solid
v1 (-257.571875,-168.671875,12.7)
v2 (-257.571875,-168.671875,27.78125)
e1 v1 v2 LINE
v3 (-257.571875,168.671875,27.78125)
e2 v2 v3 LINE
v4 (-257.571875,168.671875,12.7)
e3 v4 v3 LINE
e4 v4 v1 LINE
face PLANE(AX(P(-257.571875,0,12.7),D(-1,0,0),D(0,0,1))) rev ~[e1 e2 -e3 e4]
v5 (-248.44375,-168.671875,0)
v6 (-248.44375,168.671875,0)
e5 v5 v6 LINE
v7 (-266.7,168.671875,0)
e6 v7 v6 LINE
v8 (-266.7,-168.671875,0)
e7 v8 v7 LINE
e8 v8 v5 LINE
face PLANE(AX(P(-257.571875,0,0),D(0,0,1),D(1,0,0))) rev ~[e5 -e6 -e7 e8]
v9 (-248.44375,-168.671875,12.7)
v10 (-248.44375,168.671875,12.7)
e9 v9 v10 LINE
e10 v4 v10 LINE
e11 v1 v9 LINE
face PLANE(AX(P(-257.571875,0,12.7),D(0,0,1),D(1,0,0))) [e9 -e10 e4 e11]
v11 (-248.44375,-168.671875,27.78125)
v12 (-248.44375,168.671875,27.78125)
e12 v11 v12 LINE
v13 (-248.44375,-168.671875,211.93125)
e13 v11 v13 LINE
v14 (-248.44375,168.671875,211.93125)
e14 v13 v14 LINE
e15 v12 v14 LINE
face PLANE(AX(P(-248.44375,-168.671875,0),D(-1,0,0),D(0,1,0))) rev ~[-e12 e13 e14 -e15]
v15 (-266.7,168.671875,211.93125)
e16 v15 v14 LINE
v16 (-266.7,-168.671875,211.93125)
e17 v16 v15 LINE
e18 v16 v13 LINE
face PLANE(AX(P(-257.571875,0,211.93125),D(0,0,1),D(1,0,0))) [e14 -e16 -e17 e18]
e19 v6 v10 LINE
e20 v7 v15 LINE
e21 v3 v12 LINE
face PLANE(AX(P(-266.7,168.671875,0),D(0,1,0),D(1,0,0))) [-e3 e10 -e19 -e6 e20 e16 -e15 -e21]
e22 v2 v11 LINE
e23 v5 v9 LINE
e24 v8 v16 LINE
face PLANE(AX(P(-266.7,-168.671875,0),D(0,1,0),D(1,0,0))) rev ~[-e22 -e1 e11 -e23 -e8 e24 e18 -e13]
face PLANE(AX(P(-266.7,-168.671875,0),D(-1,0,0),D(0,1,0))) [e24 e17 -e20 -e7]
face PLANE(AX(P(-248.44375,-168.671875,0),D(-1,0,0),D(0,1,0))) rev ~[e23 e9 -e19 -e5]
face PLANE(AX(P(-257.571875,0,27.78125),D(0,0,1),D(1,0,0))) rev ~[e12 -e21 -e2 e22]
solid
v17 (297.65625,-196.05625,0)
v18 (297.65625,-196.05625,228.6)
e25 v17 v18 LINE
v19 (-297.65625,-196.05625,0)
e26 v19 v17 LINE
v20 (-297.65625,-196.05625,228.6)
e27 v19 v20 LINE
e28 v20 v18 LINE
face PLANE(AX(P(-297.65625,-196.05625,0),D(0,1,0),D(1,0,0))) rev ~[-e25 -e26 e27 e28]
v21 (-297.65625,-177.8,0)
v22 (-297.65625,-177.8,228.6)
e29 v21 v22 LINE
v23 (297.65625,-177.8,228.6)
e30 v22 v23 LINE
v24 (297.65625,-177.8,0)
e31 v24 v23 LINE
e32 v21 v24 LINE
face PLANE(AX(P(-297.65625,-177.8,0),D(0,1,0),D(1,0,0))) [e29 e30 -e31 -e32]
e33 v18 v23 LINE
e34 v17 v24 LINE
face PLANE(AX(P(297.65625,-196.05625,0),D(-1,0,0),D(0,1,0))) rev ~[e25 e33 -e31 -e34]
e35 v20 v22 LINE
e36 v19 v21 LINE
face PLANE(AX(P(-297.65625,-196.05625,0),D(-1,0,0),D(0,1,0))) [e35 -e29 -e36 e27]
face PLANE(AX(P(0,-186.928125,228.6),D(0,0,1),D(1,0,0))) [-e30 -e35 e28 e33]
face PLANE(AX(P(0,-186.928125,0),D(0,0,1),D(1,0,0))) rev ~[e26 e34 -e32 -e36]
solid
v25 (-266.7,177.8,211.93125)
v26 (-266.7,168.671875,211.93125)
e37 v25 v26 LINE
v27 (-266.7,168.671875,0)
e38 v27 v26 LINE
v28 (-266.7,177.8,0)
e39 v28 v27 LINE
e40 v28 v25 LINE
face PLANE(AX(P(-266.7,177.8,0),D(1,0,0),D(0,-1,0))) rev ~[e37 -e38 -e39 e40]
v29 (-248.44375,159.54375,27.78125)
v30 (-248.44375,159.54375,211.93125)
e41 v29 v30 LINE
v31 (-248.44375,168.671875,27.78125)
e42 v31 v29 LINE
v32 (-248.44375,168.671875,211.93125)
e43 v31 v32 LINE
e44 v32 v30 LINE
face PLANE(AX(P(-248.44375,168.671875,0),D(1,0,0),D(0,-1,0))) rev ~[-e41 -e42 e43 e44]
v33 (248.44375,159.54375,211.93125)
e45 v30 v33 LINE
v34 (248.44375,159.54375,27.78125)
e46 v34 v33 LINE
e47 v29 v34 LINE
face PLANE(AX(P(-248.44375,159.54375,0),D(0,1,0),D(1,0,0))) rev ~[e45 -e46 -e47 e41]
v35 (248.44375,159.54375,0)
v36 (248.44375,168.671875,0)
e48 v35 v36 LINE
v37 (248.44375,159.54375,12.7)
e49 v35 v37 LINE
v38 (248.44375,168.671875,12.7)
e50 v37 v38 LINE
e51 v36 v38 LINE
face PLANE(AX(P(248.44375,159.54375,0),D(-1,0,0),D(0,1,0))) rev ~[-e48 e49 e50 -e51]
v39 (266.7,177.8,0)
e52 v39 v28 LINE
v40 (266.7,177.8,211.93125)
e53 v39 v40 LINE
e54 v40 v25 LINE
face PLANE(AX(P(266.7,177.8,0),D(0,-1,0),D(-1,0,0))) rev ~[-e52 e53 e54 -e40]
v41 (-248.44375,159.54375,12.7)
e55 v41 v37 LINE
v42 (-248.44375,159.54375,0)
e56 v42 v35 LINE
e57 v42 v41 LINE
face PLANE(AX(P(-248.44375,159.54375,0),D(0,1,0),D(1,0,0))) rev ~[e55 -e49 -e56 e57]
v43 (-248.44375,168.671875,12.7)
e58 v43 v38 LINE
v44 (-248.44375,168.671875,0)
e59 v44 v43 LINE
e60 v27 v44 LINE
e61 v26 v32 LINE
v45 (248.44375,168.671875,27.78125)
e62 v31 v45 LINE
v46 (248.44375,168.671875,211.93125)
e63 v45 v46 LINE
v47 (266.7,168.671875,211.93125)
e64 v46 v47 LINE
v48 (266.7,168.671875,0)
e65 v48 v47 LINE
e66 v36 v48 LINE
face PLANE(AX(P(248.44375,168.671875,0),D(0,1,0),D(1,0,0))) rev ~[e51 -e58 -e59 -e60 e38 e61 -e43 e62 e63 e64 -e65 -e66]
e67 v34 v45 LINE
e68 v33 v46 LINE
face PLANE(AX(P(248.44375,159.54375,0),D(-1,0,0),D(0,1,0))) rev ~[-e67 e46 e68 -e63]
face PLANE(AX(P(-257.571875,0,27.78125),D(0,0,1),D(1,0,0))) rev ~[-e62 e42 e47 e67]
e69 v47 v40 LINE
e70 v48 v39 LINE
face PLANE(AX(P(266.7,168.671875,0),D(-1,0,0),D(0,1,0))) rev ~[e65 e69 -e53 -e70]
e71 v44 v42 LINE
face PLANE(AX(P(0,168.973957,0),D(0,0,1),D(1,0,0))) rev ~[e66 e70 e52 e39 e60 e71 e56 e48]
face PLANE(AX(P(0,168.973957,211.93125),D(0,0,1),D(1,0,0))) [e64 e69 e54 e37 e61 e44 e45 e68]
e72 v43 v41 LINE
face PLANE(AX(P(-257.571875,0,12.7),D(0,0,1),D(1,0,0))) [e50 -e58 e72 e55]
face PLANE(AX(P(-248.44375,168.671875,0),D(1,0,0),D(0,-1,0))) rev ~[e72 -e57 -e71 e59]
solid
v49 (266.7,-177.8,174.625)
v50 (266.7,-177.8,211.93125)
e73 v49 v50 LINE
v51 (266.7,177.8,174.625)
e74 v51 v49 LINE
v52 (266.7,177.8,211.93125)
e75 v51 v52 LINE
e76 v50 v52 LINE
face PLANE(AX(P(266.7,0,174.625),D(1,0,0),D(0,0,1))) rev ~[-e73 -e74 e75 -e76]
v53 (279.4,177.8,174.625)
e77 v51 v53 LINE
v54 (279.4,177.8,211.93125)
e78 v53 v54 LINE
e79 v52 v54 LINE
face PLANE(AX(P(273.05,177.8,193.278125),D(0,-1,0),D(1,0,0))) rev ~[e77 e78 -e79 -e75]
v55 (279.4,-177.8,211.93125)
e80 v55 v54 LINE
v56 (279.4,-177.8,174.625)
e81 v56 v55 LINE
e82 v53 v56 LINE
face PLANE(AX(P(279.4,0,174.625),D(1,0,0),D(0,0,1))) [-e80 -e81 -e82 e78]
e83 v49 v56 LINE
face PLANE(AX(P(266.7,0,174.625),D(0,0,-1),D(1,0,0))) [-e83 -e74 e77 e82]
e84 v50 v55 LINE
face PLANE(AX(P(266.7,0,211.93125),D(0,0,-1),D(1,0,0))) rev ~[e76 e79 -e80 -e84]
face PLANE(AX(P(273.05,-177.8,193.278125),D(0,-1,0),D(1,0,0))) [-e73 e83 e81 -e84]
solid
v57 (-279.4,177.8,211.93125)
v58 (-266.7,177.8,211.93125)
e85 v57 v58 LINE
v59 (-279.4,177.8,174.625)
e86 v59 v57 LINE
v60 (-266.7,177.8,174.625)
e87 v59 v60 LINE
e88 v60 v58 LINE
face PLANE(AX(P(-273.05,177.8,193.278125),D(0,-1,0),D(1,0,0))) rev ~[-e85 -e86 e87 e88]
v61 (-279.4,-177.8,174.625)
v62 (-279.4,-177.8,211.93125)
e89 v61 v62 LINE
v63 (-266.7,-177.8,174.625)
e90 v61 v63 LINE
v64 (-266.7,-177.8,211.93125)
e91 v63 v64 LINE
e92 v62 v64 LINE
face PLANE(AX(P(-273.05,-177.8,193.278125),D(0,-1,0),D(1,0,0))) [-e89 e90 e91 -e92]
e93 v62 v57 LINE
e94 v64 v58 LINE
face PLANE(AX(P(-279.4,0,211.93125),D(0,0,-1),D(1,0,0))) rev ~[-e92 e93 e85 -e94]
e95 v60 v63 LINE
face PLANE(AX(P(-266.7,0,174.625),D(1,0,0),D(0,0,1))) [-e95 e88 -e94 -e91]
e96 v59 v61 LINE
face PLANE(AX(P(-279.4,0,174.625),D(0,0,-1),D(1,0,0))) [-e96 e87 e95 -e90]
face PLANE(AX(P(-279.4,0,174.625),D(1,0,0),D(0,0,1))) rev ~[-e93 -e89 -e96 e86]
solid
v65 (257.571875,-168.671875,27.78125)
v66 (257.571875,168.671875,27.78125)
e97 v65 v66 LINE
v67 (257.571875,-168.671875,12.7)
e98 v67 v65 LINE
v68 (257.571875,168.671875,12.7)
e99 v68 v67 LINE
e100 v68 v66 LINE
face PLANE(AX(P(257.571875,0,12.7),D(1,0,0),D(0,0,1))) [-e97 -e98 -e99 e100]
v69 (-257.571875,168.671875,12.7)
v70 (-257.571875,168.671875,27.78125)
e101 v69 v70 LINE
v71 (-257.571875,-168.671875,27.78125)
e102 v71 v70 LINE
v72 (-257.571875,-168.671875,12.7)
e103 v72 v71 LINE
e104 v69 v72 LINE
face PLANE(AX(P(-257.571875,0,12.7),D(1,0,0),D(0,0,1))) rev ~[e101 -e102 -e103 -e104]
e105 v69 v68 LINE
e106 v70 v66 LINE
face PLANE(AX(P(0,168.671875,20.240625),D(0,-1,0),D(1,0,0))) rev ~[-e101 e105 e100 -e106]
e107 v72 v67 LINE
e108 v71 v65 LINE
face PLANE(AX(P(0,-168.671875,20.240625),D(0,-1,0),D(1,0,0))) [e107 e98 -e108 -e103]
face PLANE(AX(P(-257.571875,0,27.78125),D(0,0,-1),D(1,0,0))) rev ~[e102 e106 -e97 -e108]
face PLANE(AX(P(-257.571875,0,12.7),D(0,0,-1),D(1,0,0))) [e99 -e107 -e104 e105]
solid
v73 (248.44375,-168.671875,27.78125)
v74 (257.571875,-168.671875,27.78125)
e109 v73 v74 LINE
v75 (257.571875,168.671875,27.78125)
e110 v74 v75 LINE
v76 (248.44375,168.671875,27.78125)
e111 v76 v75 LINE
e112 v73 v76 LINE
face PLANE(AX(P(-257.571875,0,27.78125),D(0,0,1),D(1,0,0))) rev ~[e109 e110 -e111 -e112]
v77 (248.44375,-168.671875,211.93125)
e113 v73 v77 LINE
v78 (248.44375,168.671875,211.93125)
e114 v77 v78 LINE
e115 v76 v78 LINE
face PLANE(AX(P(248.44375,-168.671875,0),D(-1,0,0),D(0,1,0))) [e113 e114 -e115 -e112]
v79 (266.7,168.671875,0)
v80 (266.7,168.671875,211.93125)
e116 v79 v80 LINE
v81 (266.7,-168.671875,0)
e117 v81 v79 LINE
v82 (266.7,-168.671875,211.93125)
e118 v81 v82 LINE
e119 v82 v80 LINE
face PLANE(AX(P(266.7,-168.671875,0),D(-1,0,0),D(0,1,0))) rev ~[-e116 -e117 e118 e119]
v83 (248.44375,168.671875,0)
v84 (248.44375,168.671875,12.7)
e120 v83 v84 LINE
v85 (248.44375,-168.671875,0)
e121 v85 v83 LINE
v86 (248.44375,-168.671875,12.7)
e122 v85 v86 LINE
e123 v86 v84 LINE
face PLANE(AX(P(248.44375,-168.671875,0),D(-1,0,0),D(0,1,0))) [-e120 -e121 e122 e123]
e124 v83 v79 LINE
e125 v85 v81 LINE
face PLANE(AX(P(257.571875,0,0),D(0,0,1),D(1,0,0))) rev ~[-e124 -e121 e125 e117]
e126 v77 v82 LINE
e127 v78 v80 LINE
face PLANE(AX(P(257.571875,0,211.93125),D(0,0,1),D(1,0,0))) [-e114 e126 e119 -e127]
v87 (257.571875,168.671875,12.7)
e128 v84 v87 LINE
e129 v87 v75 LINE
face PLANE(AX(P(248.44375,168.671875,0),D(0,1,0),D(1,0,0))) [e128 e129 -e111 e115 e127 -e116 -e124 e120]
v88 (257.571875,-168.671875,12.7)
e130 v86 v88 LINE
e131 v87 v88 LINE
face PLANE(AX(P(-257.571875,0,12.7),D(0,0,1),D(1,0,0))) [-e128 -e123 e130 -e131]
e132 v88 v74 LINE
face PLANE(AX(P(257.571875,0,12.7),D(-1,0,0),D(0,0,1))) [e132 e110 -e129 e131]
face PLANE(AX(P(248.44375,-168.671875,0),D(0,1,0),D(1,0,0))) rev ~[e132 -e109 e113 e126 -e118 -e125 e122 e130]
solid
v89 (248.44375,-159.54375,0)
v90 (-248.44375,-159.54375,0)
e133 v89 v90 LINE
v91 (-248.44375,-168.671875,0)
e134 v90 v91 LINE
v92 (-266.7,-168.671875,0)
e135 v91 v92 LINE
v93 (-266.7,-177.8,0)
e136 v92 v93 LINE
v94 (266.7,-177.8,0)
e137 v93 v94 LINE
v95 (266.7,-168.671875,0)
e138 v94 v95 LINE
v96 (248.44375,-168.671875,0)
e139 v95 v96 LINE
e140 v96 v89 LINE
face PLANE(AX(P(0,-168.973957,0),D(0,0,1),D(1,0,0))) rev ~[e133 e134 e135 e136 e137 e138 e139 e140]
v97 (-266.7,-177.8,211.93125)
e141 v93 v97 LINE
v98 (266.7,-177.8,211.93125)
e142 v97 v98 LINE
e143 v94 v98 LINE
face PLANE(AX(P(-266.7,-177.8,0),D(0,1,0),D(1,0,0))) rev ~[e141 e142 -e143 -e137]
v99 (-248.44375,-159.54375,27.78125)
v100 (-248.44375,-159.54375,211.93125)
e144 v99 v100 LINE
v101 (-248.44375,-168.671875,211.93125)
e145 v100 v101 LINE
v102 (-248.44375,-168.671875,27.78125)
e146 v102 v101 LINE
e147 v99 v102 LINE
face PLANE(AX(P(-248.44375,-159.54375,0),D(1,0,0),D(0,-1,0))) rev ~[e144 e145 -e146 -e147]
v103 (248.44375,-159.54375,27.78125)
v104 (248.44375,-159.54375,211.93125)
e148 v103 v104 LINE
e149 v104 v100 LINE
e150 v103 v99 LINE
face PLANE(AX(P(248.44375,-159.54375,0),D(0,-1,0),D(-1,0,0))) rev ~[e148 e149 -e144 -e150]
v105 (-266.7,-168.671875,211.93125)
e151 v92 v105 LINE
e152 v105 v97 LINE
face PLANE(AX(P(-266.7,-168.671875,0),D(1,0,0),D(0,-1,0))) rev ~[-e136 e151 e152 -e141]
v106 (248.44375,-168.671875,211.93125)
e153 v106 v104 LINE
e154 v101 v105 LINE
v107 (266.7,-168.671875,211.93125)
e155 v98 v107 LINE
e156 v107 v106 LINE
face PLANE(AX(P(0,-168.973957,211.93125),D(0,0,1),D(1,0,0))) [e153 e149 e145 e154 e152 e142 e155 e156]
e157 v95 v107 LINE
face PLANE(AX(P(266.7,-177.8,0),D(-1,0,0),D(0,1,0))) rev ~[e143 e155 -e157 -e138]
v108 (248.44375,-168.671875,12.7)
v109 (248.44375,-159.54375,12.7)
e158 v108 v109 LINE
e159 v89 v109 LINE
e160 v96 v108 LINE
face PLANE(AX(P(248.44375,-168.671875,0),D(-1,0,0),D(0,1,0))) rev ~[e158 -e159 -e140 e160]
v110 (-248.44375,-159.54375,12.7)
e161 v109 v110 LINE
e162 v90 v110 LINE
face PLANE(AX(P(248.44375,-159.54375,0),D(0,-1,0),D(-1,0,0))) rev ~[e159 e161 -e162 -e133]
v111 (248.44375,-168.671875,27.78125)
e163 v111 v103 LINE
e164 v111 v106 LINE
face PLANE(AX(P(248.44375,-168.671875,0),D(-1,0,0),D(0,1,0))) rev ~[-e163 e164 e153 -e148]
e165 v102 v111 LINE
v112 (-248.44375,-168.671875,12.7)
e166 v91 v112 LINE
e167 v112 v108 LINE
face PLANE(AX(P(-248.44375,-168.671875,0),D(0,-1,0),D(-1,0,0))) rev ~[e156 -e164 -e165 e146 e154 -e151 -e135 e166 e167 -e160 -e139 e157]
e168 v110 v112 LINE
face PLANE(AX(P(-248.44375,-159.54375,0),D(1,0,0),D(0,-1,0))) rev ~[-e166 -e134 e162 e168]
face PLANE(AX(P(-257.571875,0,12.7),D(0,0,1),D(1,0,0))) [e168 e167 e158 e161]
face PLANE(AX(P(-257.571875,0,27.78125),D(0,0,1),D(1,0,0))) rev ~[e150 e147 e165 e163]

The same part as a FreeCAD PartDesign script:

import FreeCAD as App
import Part
import Sketcher
Q = App.Units.Quantity


def add_polygon(sketch, points):
    """Adds a closed chain of lines whose ends are joined by coincident constraints."""
    first, n = sketch.GeometryCount, len(points)
    for a, b in zip(points, points[1:] + points[:1]):
        sketch.addGeometry(Part.LineSegment(App.Vector(*a, 0), App.Vector(*b, 0)), False)
    for i in range(n):
        sketch.addConstraint(Sketcher.Constraint("Coincident", first + i, 2, first + (i + 1) % n, 1))

doc = App.newDocument("Part")
body = doc.addObject("PartDesign::Body", "Body")

# Sketch on XY plane
sketch1 = body.newObject("Sketcher::SketchObject", "Sketch")
sketch1.AttachmentSupport = (doc.getObject("XY_Plane"), [""])
sketch1.MapMode = "FlatFace"
add_polygon(sketch1, [(266.7, 177.8), (-266.7, 177.8), (-266.7, 168.671875), (-248.44375, 168.671875), (-248.44375, 159.54375), (248.44375, 159.54375), (248.44375, 168.671875), (266.7, 168.671875)])  # lines 0-7
sketch1.addConstraint([
    Sketcher.Constraint("Horizontal", 0),
    Sketcher.Constraint("Vertical", 1),
    Sketcher.Constraint("Horizontal", 2),
    Sketcher.Constraint("Vertical", 3),
    Sketcher.Constraint("Horizontal", 4),
    Sketcher.Constraint("Vertical", 5),
    Sketcher.Constraint("Horizontal", 6),
    Sketcher.Constraint("Vertical", 7),
    Sketcher.Constraint("Symmetric", 2, 2, 5, 2, -2),
    Sketcher.Constraint("Equal", 2, 6),
    Sketcher.Constraint("Equal", 1, 3),
    Sketcher.Constraint("DistanceX", 0, 2, 0, 1, Q("21 in")),
    Sketcher.Constraint("DistanceY", -1, 1, 0, 2, Q("7 in")),
    Sketcher.Constraint("DistanceX", 2, 1, 2, 2, Q("0.71875 in")),
    Sketcher.Constraint("DistanceY", 1, 2, 1, 1, Q("0.359375 in")),
])
pad1 = body.newObject("PartDesign::Pad", "Pad")
pad1.Profile = sketch1
pad1.Length = Q("8.34375 in")
body2 = doc.addObject("PartDesign::Body", "Body001")

# Sketch on XY plane
sketch2 = body2.newObject("Sketcher::SketchObject", "Sketch001")
sketch2.AttachmentSupport = (doc.getObject("XY_Plane001"), [""])
sketch2.MapMode = "FlatFace"
add_polygon(sketch2, [(-266.7, -177.8), (266.7, -177.8), (266.7, -168.671875), (248.44375, -168.671875), (248.44375, -159.54375), (-248.44375, -159.54375), (-248.44375, -168.671875), (-266.7, -168.671875)])  # lines 0-7
sketch2.addConstraint([
    Sketcher.Constraint("Horizontal", 0),
    Sketcher.Constraint("Vertical", 1),
    Sketcher.Constraint("Horizontal", 2),
    Sketcher.Constraint("Vertical", 3),
    Sketcher.Constraint("Horizontal", 4),
    Sketcher.Constraint("Vertical", 5),
    Sketcher.Constraint("Horizontal", 6),
    Sketcher.Constraint("Vertical", 7),
    Sketcher.Constraint("Symmetric", 2, 2, 5, 2, -2),
    Sketcher.Constraint("Equal", 2, 6),
    Sketcher.Constraint("Equal", 1, 3),
    Sketcher.Constraint("DistanceX", 0, 1, 0, 2, Q("21 in")),
    Sketcher.Constraint("DistanceY", 0, 2, -1, 1, Q("7 in")),
    Sketcher.Constraint("DistanceX", 2, 2, 2, 1, Q("0.71875 in")),
    Sketcher.Constraint("DistanceY", 1, 1, 1, 2, Q("0.359375 in")),
])
pad2 = body2.newObject("PartDesign::Pad", "Pad001")
pad2.Profile = sketch2
pad2.Length = Q("8.34375 in")
body3 = doc.addObject("PartDesign::Body", "Body002")

# Sketch on XY plane
sketch3 = body3.newObject("Sketcher::SketchObject", "Sketch002")
sketch3.AttachmentSupport = (doc.getObject("XY_Plane002"), [""])
sketch3.MapMode = "FlatFace"
add_polygon(sketch3, [(-266.7, 168.671875), (-266.7, -168.671875), (-248.44375, -168.671875), (-248.44375, 168.671875)])  # lines 0-3
sketch3.addConstraint([
    Sketcher.Constraint("Vertical", 0),
    Sketcher.Constraint("Horizontal", 1),
    Sketcher.Constraint("Vertical", 2),
    Sketcher.Constraint("Horizontal", 3),
    Sketcher.Constraint("DistanceX", 0, 2, -1, 1, Q("10.5 in")),
    Sketcher.Constraint("DistanceX", 1, 1, 1, 2, Q("0.71875 in")),
    Sketcher.Constraint("DistanceY", 0, 2, 0, 1, Q("13.28125 in")),
    Sketcher.Constraint("DistanceY", 0, 2, -1, 1, Q("6.640625 in")),
])
pad3 = body3.newObject("PartDesign::Pad", "Pad002")
pad3.Profile = sketch3
pad3.Length = Q("8.34375 in")
body4 = doc.addObject("PartDesign::Body", "Body003")

# Sketch on XY plane
sketch4 = body4.newObject("Sketcher::SketchObject", "Sketch003")
sketch4.AttachmentSupport = (doc.getObject("XY_Plane003"), [""])
sketch4.MapMode = "FlatFace"
add_polygon(sketch4, [(248.44375, 168.671875), (248.44375, -168.671875), (266.7, -168.671875), (266.7, 168.671875)])  # lines 0-3
sketch4.addConstraint([
    Sketcher.Constraint("Vertical", 0),
    Sketcher.Constraint("Horizontal", 1),
    Sketcher.Constraint("Vertical", 2),
    Sketcher.Constraint("Horizontal", 3),
    Sketcher.Constraint("DistanceX", -1, 1, 1, 2, Q("10.5 in")),
    Sketcher.Constraint("DistanceX", 1, 1, 1, 2, Q("0.71875 in")),
    Sketcher.Constraint("DistanceY", 0, 2, 0, 1, Q("13.28125 in")),
    Sketcher.Constraint("DistanceY", 0, 2, -1, 1, Q("6.640625 in")),
])
pad4 = body4.newObject("PartDesign::Pad", "Pad003")
pad4.Profile = sketch4
pad4.Length = Q("8.34375 in")
body5 = doc.addObject("PartDesign::Body", "Body004")

# Sketch on XY plane
sketch5 = body5.newObject("Sketcher::SketchObject", "Sketch004")
sketch5.AttachmentSupport = (doc.getObject("XY_Plane004"), [""])
sketch5.MapMode = "FlatFace"
add_polygon(sketch5, [(-297.65625, -177.8), (-297.65625, -196.05625), (297.65625, -196.05625), (297.65625, -177.8)])  # lines 0-3
sketch5.addConstraint([
    Sketcher.Constraint("Vertical", 0),
    Sketcher.Constraint("Horizontal", 1),
    Sketcher.Constraint("Vertical", 2),
    Sketcher.Constraint("Horizontal", 3),
    Sketcher.Constraint("DistanceY", 2, 2, -1, 1, Q("7 in")),
    Sketcher.Constraint("DistanceX", 1, 1, 1, 2, Q("23.4375 in")),
    Sketcher.Constraint("DistanceY", 0, 2, 0, 1, Q("0.71875 in")),
    Sketcher.Constraint("DistanceX", 0, 2, -1, 1, Q("11.71875 in")),
])
pad5 = body5.newObject("PartDesign::Pad", "Pad004")
pad5.Profile = sketch5
pad5.Length = Q("9 in")
body6 = doc.addObject("PartDesign::Body", "Body005")

# Sketch on XZ plane
sketch6 = body6.newObject("Sketcher::SketchObject", "Sketch005")
sketch6.AttachmentSupport = (doc.getObject("XZ_Plane005"), [""])
sketch6.MapMode = "FlatFace"
add_polygon(sketch6, [(-257.571875, 27.78125), (-257.571875, 12.7), (257.571875, 12.7), (257.571875, 27.78125)])  # lines 0-3
sketch6.addConstraint([
    Sketcher.Constraint("Vertical", 0),
    Sketcher.Constraint("Horizontal", 1),
    Sketcher.Constraint("Vertical", 2),
    Sketcher.Constraint("Horizontal", 3),
    Sketcher.Constraint("DistanceY", -1, 1, 0, 2, Q("0.5 in")),
    Sketcher.Constraint("DistanceX", 1, 1, 1, 2, Q("20.28125 in")),
    Sketcher.Constraint("DistanceY", 0, 2, 0, 1, Q("0.59375 in")),
    Sketcher.Constraint("DistanceX", 0, 2, -1, 1, Q("10.140625 in")),
])
pad6 = body6.newObject("PartDesign::Pad", "Pad005")
pad6.Profile = sketch6
pad6.Type = "TwoLengths"
pad6.Length = Q("6.640625 in")
pad6.Length2 = Q("6.640625 in")
pad6.Reversed = True
doc.recompute()

body7 = doc.addObject("PartDesign::Body", "Body006")
body7.BaseFeature = body6
boolean = body.newObject("PartDesign::Boolean", "Boolean")
boolean.Type = "Cut"
boolean.addObjects([body7])
doc.recompute()

body8 = doc.addObject("PartDesign::Body", "Body007")
body8.BaseFeature = body6
boolean2 = body2.newObject("PartDesign::Boolean", "Boolean001")
boolean2.Type = "Cut"
boolean2.addObjects([body8])
doc.recompute()

body9 = doc.addObject("PartDesign::Body", "Body008")
body9.BaseFeature = body6
boolean3 = body3.newObject("PartDesign::Boolean", "Boolean002")
boolean3.Type = "Cut"
boolean3.addObjects([body9])
doc.recompute()

boolean4 = body4.newObject("PartDesign::Boolean", "Boolean003")
boolean4.Type = "Cut"
boolean4.addObjects([body6])
body10 = doc.addObject("PartDesign::Body", "Body009")

# Sketch on XZ plane
sketch7 = body10.newObject("Sketcher::SketchObject", "Sketch006")
sketch7.AttachmentSupport = (doc.getObject("XZ_Plane009"), [""])
sketch7.MapMode = "FlatFace"
add_polygon(sketch7, [(-257.571875, 27.78125), (-257.571875, 12.7), (257.571875, 12.7), (257.571875, 27.78125)])  # lines 0-3
sketch7.addConstraint([
    Sketcher.Constraint("Vertical", 0),
    Sketcher.Constraint("Horizontal", 1),
    Sketcher.Constraint("Vertical", 2),
    Sketcher.Constraint("Horizontal", 3),
    Sketcher.Constraint("DistanceY", -1, 1, 0, 2, Q("0.5 in")),
    Sketcher.Constraint("DistanceX", 1, 1, 1, 2, Q("20.28125 in")),
    Sketcher.Constraint("DistanceY", 0, 2, 0, 1, Q("0.59375 in")),
    Sketcher.Constraint("DistanceX", 0, 2, -1, 1, Q("10.140625 in")),
])
pad7 = body10.newObject("PartDesign::Pad", "Pad006")
pad7.Profile = sketch7
pad7.Type = "TwoLengths"
pad7.Length = Q("6.640625 in")
pad7.Length2 = Q("6.640625 in")
body11 = doc.addObject("PartDesign::Body", "Body010")

# Sketch on XZ plane
sketch8 = body11.newObject("Sketcher::SketchObject", "Sketch007")
sketch8.AttachmentSupport = (doc.getObject("XZ_Plane010"), [""])
sketch8.MapMode = "FlatFace"
add_polygon(sketch8, [(-279.4, 211.93125), (-279.4, 174.625), (-266.7, 174.625), (-266.7, 211.93125)])  # lines 0-3
sketch8.addConstraint([
    Sketcher.Constraint("Vertical", 0),
    Sketcher.Constraint("Horizontal", 1),
    Sketcher.Constraint("Vertical", 2),
    Sketcher.Constraint("Horizontal", 3),
    Sketcher.Constraint("DistanceX", 1, 1, 1, 2, Q("0.5 in")),
    Sketcher.Constraint("DistanceX", 0, 2, -1, 1, Q("11 in")),
    Sketcher.Constraint("DistanceY", 0, 2, 0, 1, Q("1.46875 in")),
    Sketcher.Constraint("DistanceY", -1, 1, 0, 2, Q("6.875 in")),
])
pad8 = body11.newObject("PartDesign::Pad", "Pad007")
pad8.Profile = sketch8
pad8.Type = "TwoLengths"
pad8.Length = Q("7 in")
pad8.Length2 = Q("7 in")
body12 = doc.addObject("PartDesign::Body", "Body011")

# Sketch on XZ plane
sketch9 = body12.newObject("Sketcher::SketchObject", "Sketch008")
sketch9.AttachmentSupport = (doc.getObject("XZ_Plane011"), [""])
sketch9.MapMode = "FlatFace"
add_polygon(sketch9, [(266.7, 211.93125), (266.7, 174.625), (279.4, 174.625), (279.4, 211.93125)])  # lines 0-3
sketch9.addConstraint([
    Sketcher.Constraint("Vertical", 0),
    Sketcher.Constraint("Horizontal", 1),
    Sketcher.Constraint("Vertical", 2),
    Sketcher.Constraint("Horizontal", 3),
    Sketcher.Constraint("DistanceX", 1, 1, 1, 2, Q("0.5 in")),
    Sketcher.Constraint("DistanceX", -1, 1, 1, 2, Q("11 in")),
    Sketcher.Constraint("DistanceY", 0, 2, 0, 1, Q("1.46875 in")),
    Sketcher.Constraint("DistanceY", -1, 1, 0, 2, Q("6.875 in")),
])
pad9 = body12.newObject("PartDesign::Pad", "Pad008")
pad9.Profile = sketch9
pad9.Type = "TwoLengths"
pad9.Length = Q("7 in")
pad9.Length2 = Q("7 in")

doc.recompute()
